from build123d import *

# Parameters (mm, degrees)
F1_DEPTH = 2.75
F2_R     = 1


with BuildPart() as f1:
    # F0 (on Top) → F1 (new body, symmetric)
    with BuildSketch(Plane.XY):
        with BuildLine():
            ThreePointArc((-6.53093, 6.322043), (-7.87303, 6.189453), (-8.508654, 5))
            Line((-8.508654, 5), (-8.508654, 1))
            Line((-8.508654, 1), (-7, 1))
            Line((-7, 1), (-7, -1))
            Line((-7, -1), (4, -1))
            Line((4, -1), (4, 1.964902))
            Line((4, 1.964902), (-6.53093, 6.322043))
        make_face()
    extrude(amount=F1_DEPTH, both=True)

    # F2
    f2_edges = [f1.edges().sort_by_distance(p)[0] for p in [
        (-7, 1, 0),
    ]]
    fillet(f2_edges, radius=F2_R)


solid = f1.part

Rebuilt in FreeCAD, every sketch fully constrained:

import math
import FreeCAD as App
import Part
import Sketcher
Q = App.Units.Quantity


def edges_at(feature, points):
    """Names of the edges that pass closest to the given points."""
    edges = feature.Shape.Edges
    near = lambda p: min(range(len(edges)), key=lambda i: edges[i].distToShape(Part.Vertex(*p))[0])
    return sorted({f"Edge{near(p) + 1}" for p in points})

doc = App.newDocument("Part")
body = doc.addObject("PartDesign::Body", "Body")

sketch1 = body.newObject("Sketcher::SketchObject", "Sketch")
sketch1.AttachmentSupport = (doc.getObject("XY_Plane"), [""])
sketch1.MapMode = "FlatFace"
sketch1.addGeometry([
    Part.ArcOfCircle(Part.Circle(App.Vector(-7.1, 5, 0), App.Vector(0, 0, 1), 1.4), math.radians(68), math.radians(180)),
    Part.LineSegment(App.Vector(-8.5, 5, 0), App.Vector(-8.5, 1, 0)),
    Part.LineSegment(App.Vector(-8.5, 1, 0), App.Vector(-7, 1, 0)),
    Part.LineSegment(App.Vector(-7, 1, 0), App.Vector(-7, -1, 0)),
    Part.LineSegment(App.Vector(-7, -1, 0), App.Vector(4, -1, 0)),
    Part.LineSegment(App.Vector(4, -1, 0), App.Vector(4, 2, 0)),
    Part.LineSegment(App.Vector(4, 2, 0), App.Vector(-6.5, 6.3, 0)),
], False)
sketch1.addConstraint([
    Sketcher.Constraint("Tangent", 0, 2, 1, 1),
    Sketcher.Constraint("Coincident", 1, 2, 2, 1),
    Sketcher.Constraint("Coincident", 2, 2, 3, 1),
    Sketcher.Constraint("Coincident", 3, 2, 4, 1),
    Sketcher.Constraint("Coincident", 4, 2, 5, 1),
    Sketcher.Constraint("Coincident", 5, 2, 6, 1),
    Sketcher.Constraint("Tangent", 6, 2, 0, 1),
    Sketcher.Constraint("Vertical", 1),
    Sketcher.Constraint("Horizontal", 2),
    Sketcher.Constraint("Vertical", 3),
    Sketcher.Constraint("Horizontal", 4),
    Sketcher.Constraint("Vertical", 5),
    Sketcher.Constraint("DistanceX", 4, 1, 4, 2, Q("11 mm")),
    Sketcher.Constraint("DistanceY", 1, 2, 1, 1, Q("4 mm")),
    Sketcher.Constraint("DistanceY", 3, 2, 3, 1, Q("2 mm")),
    Sketcher.Constraint("DistanceY", -1, 1, 0, 3, Q("5 mm")),
    Sketcher.Constraint("DistanceX", 2, 2, -1, 1, Q("7 mm")),
    Sketcher.Constraint("DistanceY", 5, 1, 5, 2, Q("2.964902 mm")),
    Sketcher.Constraint("Radius", 0, Q("1.430733 mm")),
    Sketcher.Constraint("DistanceX", 2, 1, 2, 2, Q("1.508654 mm")),
])
pad1 = body.newObject("PartDesign::Pad", "Pad")
pad1.Profile = sketch1
pad1.Length = 5.5
pad1.Midplane = True
doc.recompute()

fillet = body.newObject("PartDesign::Fillet", "Fillet")
fillet.Base = (pad1, edges_at(pad1, [(-7, 1, 0)]))
fillet.Radius = 1

doc.recompute()
